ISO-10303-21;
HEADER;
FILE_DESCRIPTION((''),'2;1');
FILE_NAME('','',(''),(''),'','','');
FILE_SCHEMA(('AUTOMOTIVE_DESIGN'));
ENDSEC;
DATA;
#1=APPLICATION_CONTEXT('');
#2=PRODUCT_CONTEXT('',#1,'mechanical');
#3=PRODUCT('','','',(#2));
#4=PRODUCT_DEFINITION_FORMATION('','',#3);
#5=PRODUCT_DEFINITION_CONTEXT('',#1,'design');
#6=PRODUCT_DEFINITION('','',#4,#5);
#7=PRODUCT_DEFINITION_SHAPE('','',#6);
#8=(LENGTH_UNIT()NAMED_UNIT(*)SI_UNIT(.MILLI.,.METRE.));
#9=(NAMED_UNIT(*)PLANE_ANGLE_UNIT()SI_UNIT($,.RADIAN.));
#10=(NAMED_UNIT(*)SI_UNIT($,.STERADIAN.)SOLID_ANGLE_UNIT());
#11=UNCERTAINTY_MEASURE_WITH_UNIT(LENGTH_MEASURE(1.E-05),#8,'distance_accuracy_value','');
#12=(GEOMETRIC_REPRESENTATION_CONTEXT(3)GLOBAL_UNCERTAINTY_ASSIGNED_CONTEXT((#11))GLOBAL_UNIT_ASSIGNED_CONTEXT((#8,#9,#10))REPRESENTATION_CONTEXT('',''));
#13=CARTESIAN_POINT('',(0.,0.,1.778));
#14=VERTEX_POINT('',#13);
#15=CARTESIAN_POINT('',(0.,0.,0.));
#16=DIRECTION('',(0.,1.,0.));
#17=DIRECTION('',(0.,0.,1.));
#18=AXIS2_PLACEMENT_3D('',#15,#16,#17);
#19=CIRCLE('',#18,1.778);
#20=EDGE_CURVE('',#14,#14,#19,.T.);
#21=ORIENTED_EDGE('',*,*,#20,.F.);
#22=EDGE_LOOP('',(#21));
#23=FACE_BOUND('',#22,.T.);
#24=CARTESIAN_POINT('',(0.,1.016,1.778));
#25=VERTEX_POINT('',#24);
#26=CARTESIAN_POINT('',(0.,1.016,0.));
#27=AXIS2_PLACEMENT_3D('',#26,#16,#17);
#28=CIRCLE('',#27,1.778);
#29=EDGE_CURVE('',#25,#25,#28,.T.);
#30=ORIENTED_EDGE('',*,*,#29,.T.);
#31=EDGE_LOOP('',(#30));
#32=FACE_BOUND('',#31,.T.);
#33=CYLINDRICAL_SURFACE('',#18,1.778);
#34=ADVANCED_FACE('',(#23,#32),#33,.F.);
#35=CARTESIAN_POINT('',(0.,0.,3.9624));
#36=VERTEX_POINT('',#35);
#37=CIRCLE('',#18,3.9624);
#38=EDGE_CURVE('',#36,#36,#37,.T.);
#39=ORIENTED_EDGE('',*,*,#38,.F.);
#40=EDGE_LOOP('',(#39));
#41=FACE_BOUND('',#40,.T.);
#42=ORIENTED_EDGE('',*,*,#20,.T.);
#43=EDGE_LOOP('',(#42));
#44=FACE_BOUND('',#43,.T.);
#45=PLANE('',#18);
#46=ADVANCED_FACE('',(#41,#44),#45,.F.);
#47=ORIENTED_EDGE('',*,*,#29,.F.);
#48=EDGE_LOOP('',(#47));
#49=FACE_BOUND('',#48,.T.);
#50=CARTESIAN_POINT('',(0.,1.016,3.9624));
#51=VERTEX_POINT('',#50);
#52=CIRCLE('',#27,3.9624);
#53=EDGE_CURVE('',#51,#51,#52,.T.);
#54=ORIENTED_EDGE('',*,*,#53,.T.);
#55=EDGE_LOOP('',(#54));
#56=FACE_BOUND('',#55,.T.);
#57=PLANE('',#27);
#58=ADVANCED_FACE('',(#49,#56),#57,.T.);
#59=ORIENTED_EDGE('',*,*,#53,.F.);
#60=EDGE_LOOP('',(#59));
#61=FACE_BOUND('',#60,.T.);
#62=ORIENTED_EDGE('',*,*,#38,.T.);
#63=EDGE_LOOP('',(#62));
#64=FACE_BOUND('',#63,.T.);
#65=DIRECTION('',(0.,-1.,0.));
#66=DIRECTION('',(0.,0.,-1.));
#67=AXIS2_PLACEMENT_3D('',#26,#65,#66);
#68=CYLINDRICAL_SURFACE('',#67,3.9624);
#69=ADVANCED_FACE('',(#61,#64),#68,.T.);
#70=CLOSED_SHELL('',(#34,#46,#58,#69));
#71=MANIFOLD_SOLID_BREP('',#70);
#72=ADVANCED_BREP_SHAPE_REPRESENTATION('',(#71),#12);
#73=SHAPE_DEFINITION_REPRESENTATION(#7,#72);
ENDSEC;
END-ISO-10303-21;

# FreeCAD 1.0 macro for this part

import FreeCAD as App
import Part
import Sketcher

V = App.Vector
Q = App.Units.Quantity

doc = App.newDocument("Part")
params = doc.addObject("Spreadsheet::Sheet", "Params")
for row, (alias, value) in enumerate([
    ("sketch1_diameter", "0.312 in"),
    ("pad1_length", "0.04 in"),
    ("sketch2_diameter", "0.14 in"),
], start=1):
    params.set(f"A{row}", alias)
    params.set(f"B{row}", "=" + value)
    params.setAlias(f"B{row}", alias)

body = doc.addObject("PartDesign::Body", "Body")

sketch1 = doc.addObject("Sketcher::SketchObject", "Sketch")
body.addObject(sketch1)
sketch1.AttachmentSupport = (doc.XZ_Plane, [""])
sketch1.MapMode = "FlatFace"
sketch1.addGeometry(Part.Circle(V(0, 0, 0), V(0, 0, 1), 3.9624), False)
sketch1.addConstraint(Sketcher.Constraint("Coincident", 0, 3, -1, 1))
sketch1.addConstraint(Sketcher.Constraint("Diameter", 0, Q("0.312 in")))
sketch1.setExpression("Constraints[1]", "Params.sketch1_diameter")
pad1 = doc.addObject("PartDesign::Pad", "Pad")
body.addObject(pad1)
pad1.Profile = sketch1
pad1.setExpression("Length", "Params.pad1_length")
pad1.Reversed = True

sketch2 = doc.addObject("Sketcher::SketchObject", "Sketch001")
body.addObject(sketch2)
sketch2.AttachmentSupport = (doc.XZ_Plane, [""])
sketch2.MapMode = "FlatFace"
sketch2.AttachmentOffset = App.Placement(V(0, 0, -0.04 * 25.4), App.Rotation())
sketch2.addGeometry(Part.Circle(V(0, 0, 0), V(0, 0, 1), 1.778), False)
sketch2.addConstraint(Sketcher.Constraint("Coincident", 0, 3, -1, 1))
sketch2.addConstraint(Sketcher.Constraint("Diameter", 0, Q("0.14 in")))
sketch2.setExpression("Constraints[1]", "Params.sketch2_diameter")
pocket1 = doc.addObject("PartDesign::Pocket", "Pocket")
body.addObject(pocket1)
pocket1.Profile = sketch2
pocket1.Type = "ThroughAll"
pocket1.Reversed = True

doc.recompute()
